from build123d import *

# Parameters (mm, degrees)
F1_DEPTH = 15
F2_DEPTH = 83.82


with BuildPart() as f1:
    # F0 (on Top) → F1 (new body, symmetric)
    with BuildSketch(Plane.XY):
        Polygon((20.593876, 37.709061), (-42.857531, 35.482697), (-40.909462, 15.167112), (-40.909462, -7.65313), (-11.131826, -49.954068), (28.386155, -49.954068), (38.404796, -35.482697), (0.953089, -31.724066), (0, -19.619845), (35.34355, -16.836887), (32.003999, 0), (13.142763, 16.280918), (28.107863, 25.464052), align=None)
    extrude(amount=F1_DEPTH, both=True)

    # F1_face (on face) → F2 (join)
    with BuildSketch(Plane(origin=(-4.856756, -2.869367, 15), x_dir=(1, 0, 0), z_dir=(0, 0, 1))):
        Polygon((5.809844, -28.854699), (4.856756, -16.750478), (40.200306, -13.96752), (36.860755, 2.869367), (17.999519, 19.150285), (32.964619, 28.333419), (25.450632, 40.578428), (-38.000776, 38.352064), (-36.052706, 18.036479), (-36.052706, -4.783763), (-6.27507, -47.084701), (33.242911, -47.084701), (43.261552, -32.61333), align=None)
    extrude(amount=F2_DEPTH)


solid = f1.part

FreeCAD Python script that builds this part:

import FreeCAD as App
import Part
import Sketcher
from FreeCAD import Vector


def add_polygon(sketch, points):
    """Adds a closed chain of lines whose ends are joined by coincident constraints."""
    first, n = sketch.GeometryCount, len(points)
    for a, b in zip(points, points[1:] + points[:1]):
        sketch.addGeometry(Part.LineSegment(App.Vector(*a, 0), App.Vector(*b, 0)), False)
    for i in range(n):
        sketch.addConstraint(Sketcher.Constraint("Coincident", first + i, 2, first + (i + 1) % n, 1))

doc = App.newDocument("Part")
body = doc.addObject("PartDesign::Body", "Body")

sketch1 = body.newObject("Sketcher::SketchObject", "Sketch")
sketch1.AttachmentSupport = (doc.getObject("XY_Plane"), [""])
sketch1.MapMode = "FlatFace"
add_polygon(sketch1, [(21, 38), (-43, 35), (-41, 15), (-41, -8), (-11, -50), (28, -50), (38, -35), (1, -32), (0, -20), (35, -17), (32, 0), (13, 16), (28, 25)])
sketch1.addConstraint([
    Sketcher.Constraint("Vertical", 2),
    Sketcher.Constraint("Horizontal", 4),
    Sketcher.Constraint("PointOnObject", 7, 2, -2),
    Sketcher.Constraint("PointOnObject", 9, 2, -1),
    Sketcher.Constraint("Perpendicular", 7, 8),
    Sketcher.Constraint("Perpendicular", 11, 12),
    Sketcher.Constraint("DistanceY", 3, 2, 6, 2, 18.230002),
    Sketcher.Constraint("DistanceX", -1, 1, 9, 2, 32.003999),
    Sketcher.Constraint("DistanceX", 4, 1, 4, 2, 39.517981),
    Sketcher.Constraint("DistanceX", 10, 2, 11, 2, 14.9651),
    Sketcher.Constraint("Distance", 1, 20.408772),
    Sketcher.Constraint("Distance", 5, 17.600959),
    Sketcher.Constraint("Distance", 6, 37.639841),
    Sketcher.Constraint("Distance", 10, 24.91615),
    Sketcher.Constraint("DistanceY", 2, 2, 2, 1, 22.820242),
    Sketcher.Constraint("DistanceX", 0, 2, -1, 1, 42.857531),
    Sketcher.Constraint("DistanceX", 1, 2, -1, 1, 40.909462),
    Sketcher.Constraint("DistanceY", 2, 2, -1, 1, 7.65313),
    Sketcher.Constraint("DistanceX", -1, 1, 6, 2, 0.953089),
    Sketcher.Constraint("DistanceX", -1, 1, 8, 2, 35.34355),
    Sketcher.Constraint("DistanceY", -1, 1, 10, 2, 16.280918),
    Sketcher.Constraint("DistanceY", -1, 1, 11, 2, 25.464052),
    Sketcher.Constraint("DistanceY", -1, 1, 12, 2, 37.709061),
    Sketcher.Constraint("DistanceY", 3, 2, 2, 2, 42.300938),
    Sketcher.Constraint("DistanceX", 4, 2, 5, 2, 10.018641),
    Sketcher.Constraint("DistanceY", 6, 2, 7, 2, 12.104221),
])
pad1 = body.newObject("PartDesign::Pad", "Pad")
pad1.Profile = sketch1
pad1.Length = 30
pad1.Midplane = True

sketch2 = body.newObject("Sketcher::SketchObject", "Sketch001")
sketch2.AttachmentSupport = (doc.getObject("XY_Plane"), [""])
sketch2.MapMode = "FlatFace"
sketch2.AttachmentOffset = App.Placement(Vector(0, 0, 15), App.Rotation())
add_polygon(sketch2, [(1, -32), (0, -20), (35, -17), (32, 0), (13, 16), (28, 25), (21, 38), (-43, 35), (-41, 15), (-41, -8), (-11, -50), (28, -50), (38, -35)])
sketch2.addConstraint([
    Sketcher.Constraint("Vertical", 8),
    Sketcher.Constraint("Horizontal", 10),
    Sketcher.Constraint("PointOnObject", 0, 2, -2),
    Sketcher.Constraint("PointOnObject", 2, 2, -1),
    Sketcher.Constraint("Perpendicular", 0, 1),
    Sketcher.Constraint("Perpendicular", 4, 5),
    Sketcher.Constraint("DistanceY", 9, 2, 12, 2, 18.230002),
    Sketcher.Constraint("DistanceX", -1, 1, 2, 2, 32.003999),
    Sketcher.Constraint("DistanceX", 10, 1, 10, 2, 39.517981),
    Sketcher.Constraint("DistanceX", 3, 2, 4, 2, 14.9651),
    Sketcher.Constraint("Distance", 3, 24.91615),
    Sketcher.Constraint("Distance", 7, 20.408772),
    Sketcher.Constraint("Distance", 11, 17.600959),
    Sketcher.Constraint("DistanceY", 8, 2, 8, 1, 22.820242),
    Sketcher.Constraint("DistanceX", -1, 1, 1, 2, 35.34355),
    Sketcher.Constraint("DistanceY", -1, 1, 3, 2, 16.280918),
    Sketcher.Constraint("DistanceY", -1, 1, 4, 2, 25.464052),
    Sketcher.Constraint("DistanceY", -1, 1, 5, 2, 37.709061),
    Sketcher.Constraint("DistanceX", 7, 2, -1, 1, 40.909462),
    Sketcher.Constraint("DistanceY", 8, 2, -1, 1, 7.65313),
    Sketcher.Constraint("DistanceX", -1, 1, 12, 2, 0.953088),
    Sketcher.Constraint("DistanceY", 0, 2, 1, 2, 2.782958),
    Sketcher.Constraint("DistanceY", 1, 2, 4, 2, 42.300939),
    Sketcher.Constraint("DistanceY", 3, 2, 6, 2, 19.201779),
    Sketcher.Constraint("DistanceX", 9, 2, 3, 2, 24.274589),
    Sketcher.Constraint("DistanceX", 10, 2, 11, 2, 10.018641),
])
pad2 = body.newObject("PartDesign::Pad", "Pad001")
pad2.Profile = sketch2
pad2.Length = 83.82

doc.recompute()
